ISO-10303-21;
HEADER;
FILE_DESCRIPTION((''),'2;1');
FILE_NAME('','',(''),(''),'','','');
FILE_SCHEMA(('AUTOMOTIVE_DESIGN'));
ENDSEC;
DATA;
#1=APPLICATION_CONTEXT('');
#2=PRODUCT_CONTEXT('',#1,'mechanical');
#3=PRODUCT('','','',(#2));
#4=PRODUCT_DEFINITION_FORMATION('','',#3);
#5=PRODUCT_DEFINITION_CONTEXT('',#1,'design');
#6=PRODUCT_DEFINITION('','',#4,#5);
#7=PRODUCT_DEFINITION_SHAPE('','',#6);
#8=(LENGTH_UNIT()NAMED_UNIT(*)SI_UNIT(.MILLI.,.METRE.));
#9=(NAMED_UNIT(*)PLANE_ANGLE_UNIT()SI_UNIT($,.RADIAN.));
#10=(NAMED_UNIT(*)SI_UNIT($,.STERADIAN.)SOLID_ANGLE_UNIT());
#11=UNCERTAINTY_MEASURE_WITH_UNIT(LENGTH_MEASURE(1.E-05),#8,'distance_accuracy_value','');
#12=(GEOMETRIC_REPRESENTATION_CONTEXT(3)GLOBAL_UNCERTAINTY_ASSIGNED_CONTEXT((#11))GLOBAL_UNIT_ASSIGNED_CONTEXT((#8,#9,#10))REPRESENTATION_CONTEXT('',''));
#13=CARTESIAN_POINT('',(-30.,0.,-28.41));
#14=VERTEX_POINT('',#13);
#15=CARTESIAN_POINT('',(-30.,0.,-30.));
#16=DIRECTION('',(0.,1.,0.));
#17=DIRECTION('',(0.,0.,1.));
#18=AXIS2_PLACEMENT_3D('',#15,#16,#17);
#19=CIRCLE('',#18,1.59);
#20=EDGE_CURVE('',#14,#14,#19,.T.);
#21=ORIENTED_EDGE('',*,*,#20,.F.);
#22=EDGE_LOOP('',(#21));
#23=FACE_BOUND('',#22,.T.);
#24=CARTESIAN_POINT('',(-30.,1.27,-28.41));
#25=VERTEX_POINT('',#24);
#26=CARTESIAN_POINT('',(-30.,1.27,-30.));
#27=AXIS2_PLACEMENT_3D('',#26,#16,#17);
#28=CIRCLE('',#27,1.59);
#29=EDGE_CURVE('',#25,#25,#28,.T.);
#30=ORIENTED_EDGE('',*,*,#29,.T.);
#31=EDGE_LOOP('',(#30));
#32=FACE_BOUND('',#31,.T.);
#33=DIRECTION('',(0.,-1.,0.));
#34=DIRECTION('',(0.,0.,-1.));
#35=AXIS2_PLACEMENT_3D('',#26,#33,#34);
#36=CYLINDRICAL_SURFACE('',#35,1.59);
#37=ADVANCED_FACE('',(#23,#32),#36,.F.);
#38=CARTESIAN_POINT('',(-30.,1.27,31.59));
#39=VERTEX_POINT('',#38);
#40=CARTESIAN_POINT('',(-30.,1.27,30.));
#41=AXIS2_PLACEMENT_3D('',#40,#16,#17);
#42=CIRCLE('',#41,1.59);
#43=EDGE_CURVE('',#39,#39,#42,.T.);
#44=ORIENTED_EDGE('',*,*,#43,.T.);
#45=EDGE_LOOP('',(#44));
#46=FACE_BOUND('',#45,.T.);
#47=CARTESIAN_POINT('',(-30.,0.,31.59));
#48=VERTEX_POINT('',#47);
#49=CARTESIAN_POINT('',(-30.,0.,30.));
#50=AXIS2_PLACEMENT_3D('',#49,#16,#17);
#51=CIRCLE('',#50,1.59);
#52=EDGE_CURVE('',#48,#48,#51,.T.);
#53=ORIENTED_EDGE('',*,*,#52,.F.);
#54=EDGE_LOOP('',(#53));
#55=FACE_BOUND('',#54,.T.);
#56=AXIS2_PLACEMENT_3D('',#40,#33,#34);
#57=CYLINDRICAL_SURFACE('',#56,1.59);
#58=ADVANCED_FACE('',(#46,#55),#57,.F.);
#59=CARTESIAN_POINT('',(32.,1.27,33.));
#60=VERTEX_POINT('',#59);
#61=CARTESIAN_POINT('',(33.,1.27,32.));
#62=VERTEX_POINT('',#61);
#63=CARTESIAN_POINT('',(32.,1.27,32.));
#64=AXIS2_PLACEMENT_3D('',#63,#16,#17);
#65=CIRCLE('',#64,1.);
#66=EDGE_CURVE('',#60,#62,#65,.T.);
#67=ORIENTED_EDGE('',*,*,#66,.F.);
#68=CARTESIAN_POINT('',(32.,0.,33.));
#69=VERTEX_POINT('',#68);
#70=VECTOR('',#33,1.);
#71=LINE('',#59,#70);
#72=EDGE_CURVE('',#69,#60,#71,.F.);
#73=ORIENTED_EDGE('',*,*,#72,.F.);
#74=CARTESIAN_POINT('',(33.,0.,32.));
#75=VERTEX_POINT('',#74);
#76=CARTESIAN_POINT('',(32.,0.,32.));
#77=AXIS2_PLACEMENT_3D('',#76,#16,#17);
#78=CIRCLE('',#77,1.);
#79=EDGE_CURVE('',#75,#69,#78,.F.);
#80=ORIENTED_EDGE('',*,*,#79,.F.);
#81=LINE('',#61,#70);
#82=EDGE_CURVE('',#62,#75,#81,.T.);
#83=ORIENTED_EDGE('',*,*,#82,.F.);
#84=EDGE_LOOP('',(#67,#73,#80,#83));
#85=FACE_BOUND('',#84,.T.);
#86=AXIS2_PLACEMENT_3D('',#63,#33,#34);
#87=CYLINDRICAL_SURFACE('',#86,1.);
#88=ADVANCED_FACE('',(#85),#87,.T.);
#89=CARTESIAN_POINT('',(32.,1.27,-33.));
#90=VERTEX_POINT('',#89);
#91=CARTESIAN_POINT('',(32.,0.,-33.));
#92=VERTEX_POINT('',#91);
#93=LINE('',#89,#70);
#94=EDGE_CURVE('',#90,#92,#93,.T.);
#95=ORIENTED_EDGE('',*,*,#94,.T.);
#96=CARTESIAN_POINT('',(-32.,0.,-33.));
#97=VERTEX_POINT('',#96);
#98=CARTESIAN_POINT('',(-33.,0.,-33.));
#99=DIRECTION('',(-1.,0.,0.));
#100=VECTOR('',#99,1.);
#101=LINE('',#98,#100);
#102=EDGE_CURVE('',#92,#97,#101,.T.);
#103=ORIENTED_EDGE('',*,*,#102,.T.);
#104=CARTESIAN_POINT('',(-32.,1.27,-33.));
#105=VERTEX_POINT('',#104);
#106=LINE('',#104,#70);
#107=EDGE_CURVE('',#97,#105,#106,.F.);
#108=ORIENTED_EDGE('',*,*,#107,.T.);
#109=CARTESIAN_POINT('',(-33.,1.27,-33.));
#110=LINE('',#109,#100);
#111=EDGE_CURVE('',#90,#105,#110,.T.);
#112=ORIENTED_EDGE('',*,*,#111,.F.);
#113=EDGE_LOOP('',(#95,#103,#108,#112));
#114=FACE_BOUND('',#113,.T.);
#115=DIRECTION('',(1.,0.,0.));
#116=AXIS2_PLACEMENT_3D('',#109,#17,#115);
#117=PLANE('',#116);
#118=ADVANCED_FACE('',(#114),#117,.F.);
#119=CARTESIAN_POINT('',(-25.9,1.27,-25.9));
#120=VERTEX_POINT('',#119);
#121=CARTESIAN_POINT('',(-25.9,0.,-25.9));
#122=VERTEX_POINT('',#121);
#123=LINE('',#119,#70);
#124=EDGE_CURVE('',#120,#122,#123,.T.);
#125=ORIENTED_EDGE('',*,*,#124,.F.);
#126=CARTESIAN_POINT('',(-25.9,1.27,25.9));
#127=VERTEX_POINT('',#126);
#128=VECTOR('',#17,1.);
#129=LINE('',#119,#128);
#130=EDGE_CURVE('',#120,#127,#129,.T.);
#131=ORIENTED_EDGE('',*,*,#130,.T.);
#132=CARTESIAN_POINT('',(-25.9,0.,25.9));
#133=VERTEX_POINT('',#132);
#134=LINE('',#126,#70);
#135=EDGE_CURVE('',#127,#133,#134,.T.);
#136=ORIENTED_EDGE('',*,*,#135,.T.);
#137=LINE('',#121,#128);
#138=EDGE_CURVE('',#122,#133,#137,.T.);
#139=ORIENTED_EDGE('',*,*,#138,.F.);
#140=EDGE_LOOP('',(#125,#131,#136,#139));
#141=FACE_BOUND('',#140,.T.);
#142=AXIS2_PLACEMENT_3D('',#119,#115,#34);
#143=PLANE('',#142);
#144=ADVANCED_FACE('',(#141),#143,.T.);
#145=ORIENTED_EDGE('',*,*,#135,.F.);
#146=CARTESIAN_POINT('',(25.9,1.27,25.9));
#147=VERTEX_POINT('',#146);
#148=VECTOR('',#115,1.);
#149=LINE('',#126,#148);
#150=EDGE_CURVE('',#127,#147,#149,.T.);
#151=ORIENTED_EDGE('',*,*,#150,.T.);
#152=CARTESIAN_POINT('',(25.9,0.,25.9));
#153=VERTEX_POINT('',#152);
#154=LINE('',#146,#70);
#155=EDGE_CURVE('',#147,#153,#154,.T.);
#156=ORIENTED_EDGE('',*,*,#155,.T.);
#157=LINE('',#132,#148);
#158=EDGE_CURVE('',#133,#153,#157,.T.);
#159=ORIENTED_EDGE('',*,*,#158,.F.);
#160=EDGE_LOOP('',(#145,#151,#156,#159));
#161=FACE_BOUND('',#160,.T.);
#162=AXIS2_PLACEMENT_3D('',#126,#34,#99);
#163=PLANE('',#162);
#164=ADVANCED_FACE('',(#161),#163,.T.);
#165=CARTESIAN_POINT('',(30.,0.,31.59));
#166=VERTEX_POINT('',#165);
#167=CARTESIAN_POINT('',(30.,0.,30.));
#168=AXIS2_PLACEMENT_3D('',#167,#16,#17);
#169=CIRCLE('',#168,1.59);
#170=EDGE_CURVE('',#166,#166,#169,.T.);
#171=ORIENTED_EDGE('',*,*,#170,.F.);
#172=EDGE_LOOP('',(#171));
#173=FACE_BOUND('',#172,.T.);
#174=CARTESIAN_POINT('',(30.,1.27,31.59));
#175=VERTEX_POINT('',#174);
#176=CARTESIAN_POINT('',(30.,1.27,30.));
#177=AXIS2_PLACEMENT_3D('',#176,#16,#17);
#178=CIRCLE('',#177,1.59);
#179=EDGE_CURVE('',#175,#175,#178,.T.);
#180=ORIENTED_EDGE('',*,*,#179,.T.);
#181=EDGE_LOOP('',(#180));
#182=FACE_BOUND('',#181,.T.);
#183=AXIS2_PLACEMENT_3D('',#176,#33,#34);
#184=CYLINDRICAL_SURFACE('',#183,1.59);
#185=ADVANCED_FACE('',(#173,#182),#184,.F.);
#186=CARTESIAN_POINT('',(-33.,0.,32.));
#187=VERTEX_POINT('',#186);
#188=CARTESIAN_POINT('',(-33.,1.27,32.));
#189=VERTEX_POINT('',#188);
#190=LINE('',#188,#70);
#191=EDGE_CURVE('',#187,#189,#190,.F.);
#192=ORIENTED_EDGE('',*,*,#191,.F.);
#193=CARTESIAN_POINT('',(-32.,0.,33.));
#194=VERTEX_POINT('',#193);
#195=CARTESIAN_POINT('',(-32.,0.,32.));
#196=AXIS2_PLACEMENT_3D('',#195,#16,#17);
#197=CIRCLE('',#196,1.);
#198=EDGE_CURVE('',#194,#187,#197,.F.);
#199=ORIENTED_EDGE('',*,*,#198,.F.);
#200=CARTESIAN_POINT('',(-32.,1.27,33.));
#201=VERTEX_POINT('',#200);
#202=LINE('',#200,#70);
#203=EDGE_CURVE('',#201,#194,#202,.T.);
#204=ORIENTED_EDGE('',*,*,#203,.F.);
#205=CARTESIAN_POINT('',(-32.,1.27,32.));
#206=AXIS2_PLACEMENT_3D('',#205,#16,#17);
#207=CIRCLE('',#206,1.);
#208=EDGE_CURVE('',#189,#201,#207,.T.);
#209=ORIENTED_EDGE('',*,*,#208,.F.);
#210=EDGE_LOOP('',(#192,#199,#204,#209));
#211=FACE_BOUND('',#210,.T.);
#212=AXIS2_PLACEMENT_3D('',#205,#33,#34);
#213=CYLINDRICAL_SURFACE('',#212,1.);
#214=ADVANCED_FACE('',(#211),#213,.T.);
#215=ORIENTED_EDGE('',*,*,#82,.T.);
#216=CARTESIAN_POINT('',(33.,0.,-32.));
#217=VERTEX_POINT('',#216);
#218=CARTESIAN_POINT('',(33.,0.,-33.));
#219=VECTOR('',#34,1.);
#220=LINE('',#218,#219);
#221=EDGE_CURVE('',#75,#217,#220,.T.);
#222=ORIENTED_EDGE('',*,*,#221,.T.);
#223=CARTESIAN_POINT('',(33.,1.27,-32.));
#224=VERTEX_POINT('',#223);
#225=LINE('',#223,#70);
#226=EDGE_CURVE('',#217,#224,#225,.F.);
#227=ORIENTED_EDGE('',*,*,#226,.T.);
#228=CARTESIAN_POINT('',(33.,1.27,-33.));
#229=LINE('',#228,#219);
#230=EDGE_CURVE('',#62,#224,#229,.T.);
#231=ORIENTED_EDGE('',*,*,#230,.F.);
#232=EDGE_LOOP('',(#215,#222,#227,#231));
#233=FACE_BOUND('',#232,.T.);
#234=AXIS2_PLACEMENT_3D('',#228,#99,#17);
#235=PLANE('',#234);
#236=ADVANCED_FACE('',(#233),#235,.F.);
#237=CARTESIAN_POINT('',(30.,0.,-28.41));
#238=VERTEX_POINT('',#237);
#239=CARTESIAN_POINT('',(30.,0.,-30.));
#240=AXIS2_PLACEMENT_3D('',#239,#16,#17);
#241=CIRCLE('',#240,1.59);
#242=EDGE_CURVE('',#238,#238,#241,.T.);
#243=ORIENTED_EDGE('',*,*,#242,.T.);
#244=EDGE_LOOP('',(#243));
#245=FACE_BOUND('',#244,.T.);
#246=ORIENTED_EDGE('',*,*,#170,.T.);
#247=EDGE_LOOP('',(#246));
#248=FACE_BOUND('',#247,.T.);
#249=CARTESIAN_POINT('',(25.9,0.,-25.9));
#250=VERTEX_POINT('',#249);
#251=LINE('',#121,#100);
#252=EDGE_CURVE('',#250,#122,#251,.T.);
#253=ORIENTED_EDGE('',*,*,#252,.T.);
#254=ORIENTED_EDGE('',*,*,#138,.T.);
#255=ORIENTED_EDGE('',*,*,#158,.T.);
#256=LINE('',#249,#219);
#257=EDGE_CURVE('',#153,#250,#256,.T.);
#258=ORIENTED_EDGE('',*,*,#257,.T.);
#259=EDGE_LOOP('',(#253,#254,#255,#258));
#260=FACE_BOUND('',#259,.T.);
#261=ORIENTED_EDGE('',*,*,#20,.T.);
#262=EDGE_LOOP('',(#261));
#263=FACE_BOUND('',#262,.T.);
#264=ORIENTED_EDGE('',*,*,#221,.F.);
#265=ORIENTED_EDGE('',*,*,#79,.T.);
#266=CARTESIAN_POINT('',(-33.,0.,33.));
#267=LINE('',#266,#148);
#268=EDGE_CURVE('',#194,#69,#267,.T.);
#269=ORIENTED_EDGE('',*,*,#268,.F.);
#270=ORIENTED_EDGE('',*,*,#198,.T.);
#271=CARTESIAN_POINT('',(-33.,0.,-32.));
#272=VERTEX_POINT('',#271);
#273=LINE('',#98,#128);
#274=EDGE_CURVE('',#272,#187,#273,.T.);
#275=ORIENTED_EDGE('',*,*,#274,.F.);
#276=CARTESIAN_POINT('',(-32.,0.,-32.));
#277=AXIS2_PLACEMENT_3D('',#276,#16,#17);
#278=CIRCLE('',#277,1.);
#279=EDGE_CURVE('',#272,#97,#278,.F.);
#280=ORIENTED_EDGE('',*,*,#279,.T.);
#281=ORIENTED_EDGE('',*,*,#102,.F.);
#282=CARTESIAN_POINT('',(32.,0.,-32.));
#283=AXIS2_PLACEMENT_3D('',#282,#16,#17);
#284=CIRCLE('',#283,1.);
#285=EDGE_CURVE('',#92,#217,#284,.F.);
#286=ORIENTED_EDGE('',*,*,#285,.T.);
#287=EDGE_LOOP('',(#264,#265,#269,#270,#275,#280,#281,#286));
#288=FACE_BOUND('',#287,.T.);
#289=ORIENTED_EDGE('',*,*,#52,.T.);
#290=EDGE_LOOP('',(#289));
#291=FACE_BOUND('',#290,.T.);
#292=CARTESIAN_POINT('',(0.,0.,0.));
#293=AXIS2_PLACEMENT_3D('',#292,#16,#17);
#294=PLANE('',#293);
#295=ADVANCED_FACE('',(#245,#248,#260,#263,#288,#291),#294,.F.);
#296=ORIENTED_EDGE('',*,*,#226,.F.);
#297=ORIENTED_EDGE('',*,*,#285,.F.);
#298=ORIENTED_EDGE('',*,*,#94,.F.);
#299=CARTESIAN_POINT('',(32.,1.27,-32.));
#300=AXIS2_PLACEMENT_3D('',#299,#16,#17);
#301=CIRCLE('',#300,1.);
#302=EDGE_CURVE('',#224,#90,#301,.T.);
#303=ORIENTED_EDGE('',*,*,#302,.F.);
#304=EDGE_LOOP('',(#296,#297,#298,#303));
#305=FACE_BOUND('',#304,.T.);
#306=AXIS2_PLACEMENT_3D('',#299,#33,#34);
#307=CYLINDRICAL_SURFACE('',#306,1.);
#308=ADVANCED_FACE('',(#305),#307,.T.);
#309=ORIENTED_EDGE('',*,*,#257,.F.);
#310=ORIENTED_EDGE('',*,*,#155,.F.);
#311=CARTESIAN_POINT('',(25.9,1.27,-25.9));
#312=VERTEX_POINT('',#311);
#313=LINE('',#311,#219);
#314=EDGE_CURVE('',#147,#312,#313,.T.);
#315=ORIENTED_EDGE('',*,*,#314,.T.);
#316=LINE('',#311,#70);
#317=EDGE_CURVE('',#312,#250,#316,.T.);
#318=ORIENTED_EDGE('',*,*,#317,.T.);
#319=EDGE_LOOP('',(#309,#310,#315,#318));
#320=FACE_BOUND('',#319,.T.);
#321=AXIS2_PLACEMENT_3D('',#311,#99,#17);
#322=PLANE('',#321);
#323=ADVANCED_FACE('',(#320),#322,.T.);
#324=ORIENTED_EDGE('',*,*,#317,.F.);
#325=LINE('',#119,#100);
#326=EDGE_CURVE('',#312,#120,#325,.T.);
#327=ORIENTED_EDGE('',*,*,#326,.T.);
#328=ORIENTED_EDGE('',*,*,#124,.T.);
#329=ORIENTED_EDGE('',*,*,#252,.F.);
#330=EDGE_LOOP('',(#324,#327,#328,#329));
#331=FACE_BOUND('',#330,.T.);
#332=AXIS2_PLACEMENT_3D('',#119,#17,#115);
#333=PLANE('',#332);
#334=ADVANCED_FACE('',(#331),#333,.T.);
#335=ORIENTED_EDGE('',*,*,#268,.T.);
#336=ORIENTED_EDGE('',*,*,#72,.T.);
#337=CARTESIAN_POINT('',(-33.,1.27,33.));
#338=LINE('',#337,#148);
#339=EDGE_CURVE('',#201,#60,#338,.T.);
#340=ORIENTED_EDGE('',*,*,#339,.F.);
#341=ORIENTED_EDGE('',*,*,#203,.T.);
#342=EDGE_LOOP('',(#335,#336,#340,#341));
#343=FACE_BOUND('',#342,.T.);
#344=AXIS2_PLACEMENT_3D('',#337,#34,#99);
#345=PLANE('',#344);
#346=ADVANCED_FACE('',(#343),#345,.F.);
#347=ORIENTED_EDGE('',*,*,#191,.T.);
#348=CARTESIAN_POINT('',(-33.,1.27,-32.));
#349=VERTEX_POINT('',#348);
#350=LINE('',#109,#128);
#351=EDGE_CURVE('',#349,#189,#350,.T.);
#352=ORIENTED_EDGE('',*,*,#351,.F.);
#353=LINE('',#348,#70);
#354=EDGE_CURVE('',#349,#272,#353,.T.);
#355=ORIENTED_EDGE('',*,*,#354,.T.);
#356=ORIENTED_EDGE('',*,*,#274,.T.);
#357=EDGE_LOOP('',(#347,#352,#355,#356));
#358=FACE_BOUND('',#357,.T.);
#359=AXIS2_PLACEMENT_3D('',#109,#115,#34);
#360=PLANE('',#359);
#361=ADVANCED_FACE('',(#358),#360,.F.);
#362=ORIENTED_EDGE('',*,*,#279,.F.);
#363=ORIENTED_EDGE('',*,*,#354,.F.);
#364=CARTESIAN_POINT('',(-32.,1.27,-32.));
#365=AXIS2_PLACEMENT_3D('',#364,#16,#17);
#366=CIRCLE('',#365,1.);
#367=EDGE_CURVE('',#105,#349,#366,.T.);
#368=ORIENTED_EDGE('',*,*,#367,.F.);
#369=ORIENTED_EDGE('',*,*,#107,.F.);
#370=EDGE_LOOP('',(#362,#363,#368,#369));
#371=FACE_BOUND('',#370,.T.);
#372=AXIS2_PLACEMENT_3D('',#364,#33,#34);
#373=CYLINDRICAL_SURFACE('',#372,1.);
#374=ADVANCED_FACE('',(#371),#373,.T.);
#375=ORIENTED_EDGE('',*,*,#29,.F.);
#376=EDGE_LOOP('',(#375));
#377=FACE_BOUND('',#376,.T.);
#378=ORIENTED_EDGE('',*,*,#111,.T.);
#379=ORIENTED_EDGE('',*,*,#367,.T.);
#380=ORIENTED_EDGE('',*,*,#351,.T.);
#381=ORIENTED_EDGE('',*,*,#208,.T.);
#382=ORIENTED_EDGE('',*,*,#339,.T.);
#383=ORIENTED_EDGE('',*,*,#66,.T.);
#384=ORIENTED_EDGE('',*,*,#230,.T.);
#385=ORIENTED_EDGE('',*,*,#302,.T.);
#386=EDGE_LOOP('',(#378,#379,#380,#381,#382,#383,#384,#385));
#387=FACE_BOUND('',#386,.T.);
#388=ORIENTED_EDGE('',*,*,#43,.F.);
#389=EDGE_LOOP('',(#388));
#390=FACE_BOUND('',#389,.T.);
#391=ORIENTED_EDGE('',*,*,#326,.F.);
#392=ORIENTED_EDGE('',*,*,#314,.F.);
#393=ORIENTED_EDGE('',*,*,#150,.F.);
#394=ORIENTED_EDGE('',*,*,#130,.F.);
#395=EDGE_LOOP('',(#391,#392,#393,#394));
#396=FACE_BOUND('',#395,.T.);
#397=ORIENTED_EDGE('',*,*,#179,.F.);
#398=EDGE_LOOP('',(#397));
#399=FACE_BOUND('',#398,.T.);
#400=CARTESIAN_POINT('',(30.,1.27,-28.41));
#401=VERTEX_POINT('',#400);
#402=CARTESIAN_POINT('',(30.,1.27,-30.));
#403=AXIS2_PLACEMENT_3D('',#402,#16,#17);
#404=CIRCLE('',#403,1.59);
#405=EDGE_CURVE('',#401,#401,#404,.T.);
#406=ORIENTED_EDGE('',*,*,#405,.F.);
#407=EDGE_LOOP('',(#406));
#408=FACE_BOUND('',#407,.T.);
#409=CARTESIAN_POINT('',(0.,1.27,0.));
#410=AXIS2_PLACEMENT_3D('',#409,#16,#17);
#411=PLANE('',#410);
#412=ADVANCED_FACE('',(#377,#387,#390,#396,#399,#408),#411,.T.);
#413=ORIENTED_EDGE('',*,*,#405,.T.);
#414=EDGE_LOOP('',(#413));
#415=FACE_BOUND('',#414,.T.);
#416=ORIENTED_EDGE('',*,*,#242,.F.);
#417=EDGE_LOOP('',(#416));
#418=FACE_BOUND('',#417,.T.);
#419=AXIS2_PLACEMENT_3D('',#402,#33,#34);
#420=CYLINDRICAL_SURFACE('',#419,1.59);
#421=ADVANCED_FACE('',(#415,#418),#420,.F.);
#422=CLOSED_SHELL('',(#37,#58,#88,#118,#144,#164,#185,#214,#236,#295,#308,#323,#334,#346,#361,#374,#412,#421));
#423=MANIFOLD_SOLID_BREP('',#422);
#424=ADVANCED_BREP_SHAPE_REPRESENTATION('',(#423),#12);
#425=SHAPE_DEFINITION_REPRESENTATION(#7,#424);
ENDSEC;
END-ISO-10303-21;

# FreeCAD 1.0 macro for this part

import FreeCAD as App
import Part
import Sketcher
from FreeCAD import Vector
Q = App.Units.Quantity


def edges_at(feature, points):
    """Names of the edges that pass closest to the given points."""
    edges = feature.Shape.Edges
    near = lambda p: min(range(len(edges)), key=lambda i: edges[i].distToShape(Part.Vertex(*p))[0])
    return sorted({f"Edge{near(p) + 1}" for p in points})


def add_polygon(sketch, points):
    """Adds a closed chain of lines whose ends are joined by coincident constraints."""
    first, n = sketch.GeometryCount, len(points)
    for a, b in zip(points, points[1:] + points[:1]):
        sketch.addGeometry(Part.LineSegment(App.Vector(*a, 0), App.Vector(*b, 0)), False)
    for i in range(n):
        sketch.addConstraint(Sketcher.Constraint("Coincident", first + i, 2, first + (i + 1) % n, 1))

doc = App.newDocument("Part")
body = doc.addObject("PartDesign::Body", "Body")

sketch1 = body.newObject("Sketcher::SketchObject", "Sketch")
sketch1.AttachmentSupport = (doc.getObject("XZ_Plane"), [""])
sketch1.MapMode = "FlatFace"
add_polygon(sketch1, [(-33, -33), (-33, 33), (33, 33), (33, -33)])
sketch1.addGeometry(Part.Circle(Vector(-30, 30, 0), Vector(0, 0, 1), 1.6), False)
sketch1.addGeometry(Part.Circle(Vector(30, 30, 0), Vector(0, 0, 1), 1.6), False)
sketch1.addGeometry(Part.Circle(Vector(-30, -30, 0), Vector(0, 0, 1), 1.6), False)
add_polygon(sketch1, [(25.9, 25.9), (-25.9, 25.9), (-25.9, -25.9), (25.9, -25.9)])
sketch1.addGeometry(Part.Circle(Vector(30, -30, 0), Vector(0, 0, 1), 1.6), False)
sketch1.addConstraint(Sketcher.Constraint("Vertical", 0))
sketch1.addConstraint(Sketcher.Constraint("Horizontal", 1))
sketch1.addConstraint(Sketcher.Constraint("Vertical", 2))
sketch1.addConstraint(Sketcher.Constraint("Horizontal", 3))
sketch1.addConstraint(Sketcher.Constraint("Horizontal", 7))
sketch1.addConstraint(Sketcher.Constraint("Vertical", 8))
sketch1.addConstraint(Sketcher.Constraint("Horizontal", 9))
sketch1.addConstraint(Sketcher.Constraint("Vertical", 10))
sketch1.addConstraint(Sketcher.Constraint("Equal", 4, 5))
sketch1.addConstraint(Sketcher.Constraint("Equal", 5, 6))
sketch1.addConstraint(Sketcher.Constraint("Equal", 6, 11))
sketch1.addConstraint(Sketcher.Constraint("Symmetric", 5, 3, 6, 3, -1, 1))
sketch1.addConstraint(Sketcher.Constraint("Symmetric", 4, 3, 11, 3, -1, 1))
sketch1.addConstraint(Sketcher.Constraint("Symmetric", 0, 2, 2, 2, -1, 1))
sketch1.addConstraint(Sketcher.Constraint("Symmetric", 7, 2, 9, 2, -1, 1))
sketch1.addConstraint(Sketcher.Constraint("Symmetric", 4, 3, 5, 3, -2))
sketch1.addConstraint(Sketcher.Constraint("Equal", 3, 0))
sketch1.addConstraint(Sketcher.Constraint("Equal", 9, 8))
sketch1.addConstraint(Sketcher.Constraint("Diameter", 4, Q("3.18 mm")))
sketch1.addConstraint(Sketcher.Constraint("DistanceX", 1, 1, 1, 2, Q("66 mm")))
sketch1.addConstraint(Sketcher.Constraint("DistanceX", 7, 2, 7, 1, Q("51.8 mm")))
sketch1.addConstraint(Sketcher.Constraint("DistanceX", 4, 3, -1, 1, Q("30 mm")))
sketch1.addConstraint(Sketcher.Constraint("DistanceY", -1, 1, 4, 3, Q("30 mm")))
pad1 = body.newObject("PartDesign::Pad", "Pad")
pad1.Profile = sketch1
pad1.Length = 1.27
pad1.Reversed = True
doc.recompute()

fillet = body.newObject("PartDesign::Fillet", "Fillet")
fillet.Base = (pad1, edges_at(pad1, [
    (33, 0.635, 33),
    (-33, 0.635, 33),
    (-33, 0.635, -33),
    (33, 0.635, -33),
]))
fillet.Radius = 1

doc.recompute()
